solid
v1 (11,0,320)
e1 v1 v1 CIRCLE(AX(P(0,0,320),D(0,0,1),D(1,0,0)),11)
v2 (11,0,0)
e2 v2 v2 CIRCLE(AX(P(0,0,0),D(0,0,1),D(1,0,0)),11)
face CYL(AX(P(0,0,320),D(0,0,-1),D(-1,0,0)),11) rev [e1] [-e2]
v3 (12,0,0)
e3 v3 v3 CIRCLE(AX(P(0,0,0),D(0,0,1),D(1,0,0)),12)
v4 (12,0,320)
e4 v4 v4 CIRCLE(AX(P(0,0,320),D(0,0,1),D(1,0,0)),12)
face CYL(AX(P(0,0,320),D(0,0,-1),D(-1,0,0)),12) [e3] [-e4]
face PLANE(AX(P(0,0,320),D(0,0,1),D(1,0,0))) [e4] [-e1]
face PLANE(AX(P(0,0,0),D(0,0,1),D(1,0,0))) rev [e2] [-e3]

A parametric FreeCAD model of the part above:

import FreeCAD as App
import Part
import Sketcher
from FreeCAD import Vector
Q = App.Units.Quantity

doc = App.newDocument("Part")
body = doc.addObject("PartDesign::Body", "Body")

# Sketch on XY plane
sketch1 = body.newObject("Sketcher::SketchObject", "Sketch")
sketch1.AttachmentSupport = (doc.getObject("XY_Plane"), [""])
sketch1.MapMode = "FlatFace"
sketch1.addGeometry(Part.Circle(Vector(0, 0, 0), Vector(0, 0, 1), 12), False)
sketch1.addGeometry(Part.Circle(Vector(0, 0, 0), Vector(0, 0, 1), 11), False)
sketch1.addConstraint(Sketcher.Constraint("Coincident", 0, 3, -1, 1))
sketch1.addConstraint(Sketcher.Constraint("Coincident", 1, 3, -1, 1))
sketch1.addConstraint(Sketcher.Constraint("Diameter", 0, Q("24 mm")))
sketch1.addConstraint(Sketcher.Constraint("Diameter", 1, Q("22 mm")))
pad1 = body.newObject("PartDesign::Pad", "Pad")
pad1.Profile = sketch1
pad1.Length = 320

doc.recompute()
